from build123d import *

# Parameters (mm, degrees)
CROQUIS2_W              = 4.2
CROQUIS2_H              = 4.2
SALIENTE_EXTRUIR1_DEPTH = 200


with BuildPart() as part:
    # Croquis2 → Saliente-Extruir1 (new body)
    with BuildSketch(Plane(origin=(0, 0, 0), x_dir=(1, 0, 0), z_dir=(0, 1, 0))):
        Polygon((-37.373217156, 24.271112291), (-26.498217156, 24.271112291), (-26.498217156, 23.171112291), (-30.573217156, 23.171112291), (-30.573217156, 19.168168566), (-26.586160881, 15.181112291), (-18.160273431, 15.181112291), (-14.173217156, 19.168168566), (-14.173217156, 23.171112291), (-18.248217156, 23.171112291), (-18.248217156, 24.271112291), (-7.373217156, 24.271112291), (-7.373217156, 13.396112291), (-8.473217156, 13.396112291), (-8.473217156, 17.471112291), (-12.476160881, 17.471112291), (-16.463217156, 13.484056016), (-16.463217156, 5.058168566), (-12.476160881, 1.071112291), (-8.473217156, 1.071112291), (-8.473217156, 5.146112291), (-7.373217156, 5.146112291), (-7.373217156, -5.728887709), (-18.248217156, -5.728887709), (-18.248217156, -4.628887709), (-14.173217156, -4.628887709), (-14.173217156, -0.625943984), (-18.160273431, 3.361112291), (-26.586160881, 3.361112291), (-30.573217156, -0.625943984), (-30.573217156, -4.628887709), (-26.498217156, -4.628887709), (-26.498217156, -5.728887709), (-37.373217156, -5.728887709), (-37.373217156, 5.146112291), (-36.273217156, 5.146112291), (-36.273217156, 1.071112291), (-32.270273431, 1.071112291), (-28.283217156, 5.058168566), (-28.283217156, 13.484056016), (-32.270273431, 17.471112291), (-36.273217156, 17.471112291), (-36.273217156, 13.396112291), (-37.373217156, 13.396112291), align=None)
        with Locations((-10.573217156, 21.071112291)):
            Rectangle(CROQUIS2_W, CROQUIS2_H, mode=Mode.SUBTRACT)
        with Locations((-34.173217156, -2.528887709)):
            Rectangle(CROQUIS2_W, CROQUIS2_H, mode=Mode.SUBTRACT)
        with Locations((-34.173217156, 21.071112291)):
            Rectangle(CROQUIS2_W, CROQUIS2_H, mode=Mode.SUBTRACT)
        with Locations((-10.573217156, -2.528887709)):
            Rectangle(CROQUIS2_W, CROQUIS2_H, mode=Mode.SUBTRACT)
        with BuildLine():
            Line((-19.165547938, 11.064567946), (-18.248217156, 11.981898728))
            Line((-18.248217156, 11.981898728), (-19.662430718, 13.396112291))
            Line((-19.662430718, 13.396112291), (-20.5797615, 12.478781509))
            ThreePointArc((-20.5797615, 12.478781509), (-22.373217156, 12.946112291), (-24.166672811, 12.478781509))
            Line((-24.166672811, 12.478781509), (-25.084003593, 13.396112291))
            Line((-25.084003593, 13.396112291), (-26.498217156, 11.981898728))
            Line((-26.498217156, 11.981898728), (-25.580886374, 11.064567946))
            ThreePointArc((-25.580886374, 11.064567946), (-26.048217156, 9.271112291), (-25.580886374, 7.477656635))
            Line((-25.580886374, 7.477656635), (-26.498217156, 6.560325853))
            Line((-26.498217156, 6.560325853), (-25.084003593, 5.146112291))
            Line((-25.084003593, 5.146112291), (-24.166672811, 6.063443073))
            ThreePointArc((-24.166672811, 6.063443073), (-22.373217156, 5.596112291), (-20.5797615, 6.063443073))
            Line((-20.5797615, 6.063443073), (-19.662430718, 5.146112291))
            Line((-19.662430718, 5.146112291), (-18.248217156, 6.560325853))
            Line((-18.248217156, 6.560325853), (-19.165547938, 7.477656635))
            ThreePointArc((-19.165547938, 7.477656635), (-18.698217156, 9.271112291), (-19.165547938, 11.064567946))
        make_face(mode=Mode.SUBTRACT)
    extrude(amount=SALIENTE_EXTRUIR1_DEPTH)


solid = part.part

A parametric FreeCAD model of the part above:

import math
import FreeCAD as App
import Part
import Sketcher

V = App.Vector
Q = App.Units.Quantity

doc = App.newDocument("Part")
body = doc.addObject("PartDesign::Body", "Body")

sketch1 = body.newObject("Sketcher::SketchObject", "Sketch")
sketch1.AttachmentSupport = (doc.getObject("XZ_Plane"), [""])
sketch1.MapMode = "FlatFace"
sketch1.addGeometry([
    Part.LineSegment(V(-26.498217, -24.271112, 0), V(-37.373217, -24.271112, 0)),
    Part.LineSegment(V(-37.373217, -24.271112, 0), V(-37.373217, -13.396112, 0)),
    Part.LineSegment(V(-37.373217, -13.396112, 0), V(-36.273217, -13.396112, 0)),
    Part.LineSegment(V(-36.273217, -13.396112, 0), V(-36.273217, -17.471112, 0)),
    Part.LineSegment(V(-36.273217, -17.471112, 0), V(-32.270273, -17.471112, 0)),
    Part.LineSegment(V(-32.270273, -17.471112, 0), V(-28.283217, -13.484056, 0)),
    Part.LineSegment(V(-28.283217, -13.484056, 0), V(-28.283217, -5.058169, 0)),
    Part.LineSegment(V(-28.283217, -5.058169, 0), V(-32.270273, -1.071112, 0)),
    Part.LineSegment(V(-32.270273, -1.071112, 0), V(-36.273217, -1.071112, 0)),
    Part.LineSegment(V(-36.273217, -1.071112, 0), V(-36.273217, -5.146112, 0)),
    Part.LineSegment(V(-36.273217, -5.146112, 0), V(-37.373217, -5.146112, 0)),
    Part.LineSegment(V(-37.373217, -5.146112, 0), V(-37.373217, 5.728888, 0)),
    Part.LineSegment(V(-37.373217, 5.728888, 0), V(-26.498217, 5.728888, 0)),
    Part.LineSegment(V(-26.498217, 5.728888, 0), V(-26.498217, 4.628888, 0)),
    Part.LineSegment(V(-26.498217, 4.628888, 0), V(-30.573217, 4.628888, 0)),
    Part.LineSegment(V(-30.573217, 4.628888, 0), V(-30.573217, 0.625944, 0)),
    Part.LineSegment(V(-30.573217, 0.625944, 0), V(-26.586161, -3.361112, 0)),
    Part.LineSegment(V(-26.586161, -3.361112, 0), V(-18.160273, -3.361112, 0)),
    Part.LineSegment(V(-18.160273, -3.361112, 0), V(-14.173217, 0.625944, 0)),
    Part.LineSegment(V(-14.173217, 0.625944, 0), V(-14.173217, 4.628888, 0)),
    Part.LineSegment(V(-14.173217, 4.628888, 0), V(-18.248217, 4.628888, 0)),
    Part.LineSegment(V(-18.248217, 4.628888, 0), V(-18.248217, 5.728888, 0)),
    Part.LineSegment(V(-18.248217, 5.728888, 0), V(-7.373217, 5.728888, 0)),
    Part.LineSegment(V(-7.373217, 5.728888, 0), V(-7.373217, -5.146112, 0)),
    Part.LineSegment(V(-7.373217, -5.146112, 0), V(-8.473217, -5.146112, 0)),
    Part.LineSegment(V(-8.473217, -5.146112, 0), V(-8.473217, -1.071112, 0)),
    Part.LineSegment(V(-8.473217, -1.071112, 0), V(-12.476161, -1.071112, 0)),
    Part.LineSegment(V(-12.476161, -1.071112, 0), V(-16.463217, -5.058169, 0)),
    Part.LineSegment(V(-16.463217, -5.058169, 0), V(-16.463217, -13.484056, 0)),
    Part.LineSegment(V(-16.463217, -13.484056, 0), V(-12.476161, -17.471112, 0)),
    Part.LineSegment(V(-12.476161, -17.471112, 0), V(-8.473217, -17.471112, 0)),
    Part.LineSegment(V(-8.473217, -17.471112, 0), V(-8.473217, -13.396112, 0)),
    Part.LineSegment(V(-8.473217, -13.396112, 0), V(-7.373217, -13.396112, 0)),
    Part.LineSegment(V(-7.373217, -13.396112, 0), V(-7.373217, -24.271112, 0)),
    Part.LineSegment(V(-7.373217, -24.271112, 0), V(-18.248217, -24.271112, 0)),
    Part.LineSegment(V(-18.248217, -24.271112, 0), V(-18.248217, -23.171112, 0)),
    Part.LineSegment(V(-18.248217, -23.171112, 0), V(-14.173217, -23.171112, 0)),
    Part.LineSegment(V(-14.173217, -23.171112, 0), V(-14.173217, -19.168169, 0)),
    Part.LineSegment(V(-14.173217, -19.168169, 0), V(-18.160273, -15.181112, 0)),
    Part.LineSegment(V(-18.160273, -15.181112, 0), V(-26.586161, -15.181112, 0)),
    Part.LineSegment(V(-26.586161, -15.181112, 0), V(-30.573217, -19.168169, 0)),
    Part.LineSegment(V(-30.573217, -19.168169, 0), V(-30.573217, -23.171112, 0)),
    Part.LineSegment(V(-30.573217, -23.171112, 0), V(-26.498217, -23.171112, 0)),
    Part.LineSegment(V(-26.498217, -23.171112, 0), V(-26.498217, -24.271112, 0)),
    Part.LineSegment(V(-12.673217, 4.628888, 0), V(-12.673217, 0.428888, 0)),
    Part.LineSegment(V(-12.673217, 0.428888, 0), V(-8.473217, 0.428888, 0)),
    Part.LineSegment(V(-8.473217, 0.428888, 0), V(-8.473217, 4.628888, 0)),
    Part.LineSegment(V(-8.473217, 4.628888, 0), V(-12.673217, 4.628888, 0)),
    Part.LineSegment(V(-36.273217, 4.628888, 0), V(-36.273217, 0.428888, 0)),
    Part.LineSegment(V(-36.273217, 0.428888, 0), V(-32.073217, 0.428888, 0)),
    Part.LineSegment(V(-32.073217, 0.428888, 0), V(-32.073217, 4.628888, 0)),
    Part.LineSegment(V(-32.073217, 4.628888, 0), V(-36.273217, 4.628888, 0)),
    Part.ArcOfCircle(Part.Circle(V(-22.373217, -9.271112, 0), V(0, 0, 1), 3.675), math.radians(-29.210206), math.radians(29.210206)),
    Part.LineSegment(V(-19.165548, -7.477657, 0), V(-18.248217, -6.560326, 0)),
    Part.LineSegment(V(-18.248217, -6.560326, 0), V(-19.662431, -5.146112, 0)),
    Part.LineSegment(V(-19.662431, -5.146112, 0), V(-20.579762, -6.063443, 0)),
    Part.ArcOfCircle(Part.Circle(V(-22.373217, -9.271112, 0), V(0, 0, 1), 3.675), math.radians(60.789794), math.radians(119.210206)),
    Part.LineSegment(V(-24.166673, -6.063443, 0), V(-25.084004, -5.146112, 0)),
    Part.LineSegment(V(-25.084004, -5.146112, 0), V(-26.498217, -6.560326, 0)),
    Part.LineSegment(V(-26.498217, -6.560326, 0), V(-25.580886, -7.477657, 0)),
    Part.ArcOfCircle(Part.Circle(V(-22.373217, -9.271112, 0), V(0, 0, 1), 3.675), math.radians(150.789794), math.radians(209.210206)),
    Part.LineSegment(V(-25.580886, -11.064568, 0), V(-26.498217, -11.981899, 0)),
    Part.LineSegment(V(-26.498217, -11.981899, 0), V(-25.084004, -13.396112, 0)),
    Part.LineSegment(V(-25.084004, -13.396112, 0), V(-24.166673, -12.478782, 0)),
    Part.ArcOfCircle(Part.Circle(V(-22.373217, -9.271112, 0), V(0, 0, 1), 3.675), math.radians(-119.210206), math.radians(-60.789794)),
    Part.LineSegment(V(-20.579762, -12.478782, 0), V(-19.662431, -13.396112, 0)),
    Part.LineSegment(V(-19.662431, -13.396112, 0), V(-18.248217, -11.981899, 0)),
    Part.LineSegment(V(-18.248217, -11.981899, 0), V(-19.165548, -11.064568, 0)),
    Part.LineSegment(V(-12.673217, -18.971112, 0), V(-12.673217, -23.171112, 0)),
    Part.LineSegment(V(-12.673217, -23.171112, 0), V(-8.473217, -23.171112, 0)),
    Part.LineSegment(V(-8.473217, -23.171112, 0), V(-8.473217, -18.971112, 0)),
    Part.LineSegment(V(-8.473217, -18.971112, 0), V(-12.673217, -18.971112, 0)),
    Part.LineSegment(V(-36.273217, -18.971112, 0), V(-36.273217, -23.171112, 0)),
    Part.LineSegment(V(-36.273217, -23.171112, 0), V(-32.073217, -23.171112, 0)),
    Part.LineSegment(V(-32.073217, -23.171112, 0), V(-32.073217, -18.971112, 0)),
    Part.LineSegment(V(-32.073217, -18.971112, 0), V(-36.273217, -18.971112, 0)),
], False)
sketch1.addConstraint([
    Sketcher.Constraint("Coincident", 0, 2, 1, 1),
    Sketcher.Constraint("Coincident", 1, 2, 2, 1),
    Sketcher.Constraint("Coincident", 2, 2, 3, 1),
    Sketcher.Constraint("Coincident", 3, 2, 4, 1),
    Sketcher.Constraint("Coincident", 4, 2, 5, 1),
    Sketcher.Constraint("Coincident", 5, 2, 6, 1),
    Sketcher.Constraint("Coincident", 6, 2, 7, 1),
    Sketcher.Constraint("Coincident", 7, 2, 8, 1),
    Sketcher.Constraint("Coincident", 8, 2, 9, 1),
    Sketcher.Constraint("Coincident", 9, 2, 10, 1),
    Sketcher.Constraint("Coincident", 10, 2, 11, 1),
    Sketcher.Constraint("Coincident", 11, 2, 12, 1),
    Sketcher.Constraint("Coincident", 12, 2, 13, 1),
    Sketcher.Constraint("Coincident", 13, 2, 14, 1),
    Sketcher.Constraint("Coincident", 14, 2, 15, 1),
    Sketcher.Constraint("Coincident", 15, 2, 16, 1),
    Sketcher.Constraint("Coincident", 16, 2, 17, 1),
    Sketcher.Constraint("Coincident", 17, 2, 18, 1),
    Sketcher.Constraint("Coincident", 18, 2, 19, 1),
    Sketcher.Constraint("Coincident", 19, 2, 20, 1),
    Sketcher.Constraint("Coincident", 20, 2, 21, 1),
    Sketcher.Constraint("Coincident", 21, 2, 22, 1),
    Sketcher.Constraint("Coincident", 22, 2, 23, 1),
    Sketcher.Constraint("Coincident", 23, 2, 24, 1),
    Sketcher.Constraint("Coincident", 24, 2, 25, 1),
    Sketcher.Constraint("Coincident", 25, 2, 26, 1),
    Sketcher.Constraint("Coincident", 26, 2, 27, 1),
    Sketcher.Constraint("Coincident", 27, 2, 28, 1),
    Sketcher.Constraint("Coincident", 28, 2, 29, 1),
    Sketcher.Constraint("Coincident", 29, 2, 30, 1),
    Sketcher.Constraint("Coincident", 30, 2, 31, 1),
    Sketcher.Constraint("Coincident", 31, 2, 32, 1),
    Sketcher.Constraint("Coincident", 32, 2, 33, 1),
    Sketcher.Constraint("Coincident", 33, 2, 34, 1),
    Sketcher.Constraint("Coincident", 34, 2, 35, 1),
    Sketcher.Constraint("Coincident", 35, 2, 36, 1),
    Sketcher.Constraint("Coincident", 36, 2, 37, 1),
    Sketcher.Constraint("Coincident", 37, 2, 38, 1),
    Sketcher.Constraint("Coincident", 38, 2, 39, 1),
    Sketcher.Constraint("Coincident", 39, 2, 40, 1),
    Sketcher.Constraint("Coincident", 40, 2, 41, 1),
    Sketcher.Constraint("Coincident", 41, 2, 42, 1),
    Sketcher.Constraint("Coincident", 42, 2, 43, 1),
    Sketcher.Constraint("Coincident", 43, 2, 0, 1),
    Sketcher.Constraint("Coincident", 44, 2, 45, 1),
    Sketcher.Constraint("Coincident", 45, 2, 46, 1),
    Sketcher.Constraint("Coincident", 46, 2, 47, 1),
    Sketcher.Constraint("Coincident", 47, 2, 44, 1),
    Sketcher.Constraint("Coincident", 48, 2, 49, 1),
    Sketcher.Constraint("Coincident", 49, 2, 50, 1),
    Sketcher.Constraint("Coincident", 50, 2, 51, 1),
    Sketcher.Constraint("Coincident", 51, 2, 48, 1),
    Sketcher.Constraint("Coincident", 52, 2, 53, 1),
    Sketcher.Constraint("Coincident", 53, 2, 54, 1),
    Sketcher.Constraint("Coincident", 54, 2, 55, 1),
    Sketcher.Constraint("Coincident", 55, 2, 56, 1),
    Sketcher.Constraint("Coincident", 56, 2, 57, 1),
    Sketcher.Constraint("Coincident", 57, 2, 58, 1),
    Sketcher.Constraint("Coincident", 58, 2, 59, 1),
    Sketcher.Constraint("Coincident", 59, 2, 60, 1),
    Sketcher.Constraint("Coincident", 60, 2, 61, 1),
    Sketcher.Constraint("Coincident", 61, 2, 62, 1),
    Sketcher.Constraint("Coincident", 62, 2, 63, 1),
    Sketcher.Constraint("Coincident", 63, 2, 64, 1),
    Sketcher.Constraint("Coincident", 64, 2, 65, 1),
    Sketcher.Constraint("Coincident", 65, 2, 66, 1),
    Sketcher.Constraint("Coincident", 66, 2, 67, 1),
    Sketcher.Constraint("Coincident", 67, 2, 52, 1),
    Sketcher.Constraint("Coincident", 68, 2, 69, 1),
    Sketcher.Constraint("Coincident", 69, 2, 70, 1),
    Sketcher.Constraint("Coincident", 70, 2, 71, 1),
    Sketcher.Constraint("Coincident", 71, 2, 68, 1),
    Sketcher.Constraint("Coincident", 72, 2, 73, 1),
    Sketcher.Constraint("Coincident", 73, 2, 74, 1),
    Sketcher.Constraint("Coincident", 74, 2, 75, 1),
    Sketcher.Constraint("Coincident", 75, 2, 72, 1),
    Sketcher.Constraint("Horizontal", 0),
    Sketcher.Constraint("Vertical", 1),
    Sketcher.Constraint("Horizontal", 2),
    Sketcher.Constraint("Vertical", 3),
    Sketcher.Constraint("Horizontal", 4),
    Sketcher.Constraint("Vertical", 6),
    Sketcher.Constraint("Horizontal", 8),
    Sketcher.Constraint("Vertical", 9),
    Sketcher.Constraint("Horizontal", 10),
    Sketcher.Constraint("Vertical", 11),
    Sketcher.Constraint("Horizontal", 12),
    Sketcher.Constraint("Vertical", 13),
    Sketcher.Constraint("Horizontal", 14),
    Sketcher.Constraint("Vertical", 15),
    Sketcher.Constraint("Horizontal", 17),
    Sketcher.Constraint("Vertical", 19),
    Sketcher.Constraint("Horizontal", 20),
    Sketcher.Constraint("Vertical", 21),
    Sketcher.Constraint("Horizontal", 22),
    Sketcher.Constraint("Vertical", 23),
    Sketcher.Constraint("Horizontal", 24),
    Sketcher.Constraint("Vertical", 25),
    Sketcher.Constraint("Horizontal", 26),
    Sketcher.Constraint("Vertical", 28),
    Sketcher.Constraint("Horizontal", 30),
    Sketcher.Constraint("Vertical", 31),
    Sketcher.Constraint("Horizontal", 32),
    Sketcher.Constraint("Vertical", 33),
    Sketcher.Constraint("Horizontal", 34),
    Sketcher.Constraint("Vertical", 35),
    Sketcher.Constraint("Horizontal", 36),
    Sketcher.Constraint("Vertical", 37),
    Sketcher.Constraint("Horizontal", 39),
    Sketcher.Constraint("Vertical", 41),
    Sketcher.Constraint("Horizontal", 42),
    Sketcher.Constraint("Vertical", 43),
    Sketcher.Constraint("Vertical", 44),
    Sketcher.Constraint("Horizontal", 45),
    Sketcher.Constraint("Vertical", 46),
    Sketcher.Constraint("Horizontal", 47),
    Sketcher.Constraint("Vertical", 48),
    Sketcher.Constraint("Horizontal", 49),
    Sketcher.Constraint("Vertical", 50),
    Sketcher.Constraint("Horizontal", 51),
    Sketcher.Constraint("Vertical", 68),
    Sketcher.Constraint("Horizontal", 69),
    Sketcher.Constraint("Vertical", 70),
    Sketcher.Constraint("Horizontal", 71),
    Sketcher.Constraint("Vertical", 72),
    Sketcher.Constraint("Horizontal", 73),
    Sketcher.Constraint("Vertical", 74),
    Sketcher.Constraint("Horizontal", 75),
    Sketcher.Constraint("Coincident", 56, 3, 52, 3),
    Sketcher.Constraint("Coincident", 60, 3, 52, 3),
    Sketcher.Constraint("Coincident", 64, 3, 52, 3),
    Sketcher.Constraint("Equal", 52, 56),
    Sketcher.Constraint("Equal", 56, 60),
    Sketcher.Constraint("Equal", 60, 64),
    Sketcher.Constraint("Perpendicular", 5, 7),
    Sketcher.Constraint("Parallel", 7, 16),
    Sketcher.Constraint("Perpendicular", 16, 18),
    Sketcher.Constraint("Parallel", 18, 27),
    Sketcher.Constraint("Perpendicular", 27, 29),
    Sketcher.Constraint("Parallel", 29, 38),
    Sketcher.Constraint("Perpendicular", 38, 40),
    Sketcher.Constraint("Parallel", 40, 53),
    Sketcher.Constraint("Perpendicular", 53, 54),
    Sketcher.Constraint("Perpendicular", 54, 55),
    Sketcher.Constraint("Perpendicular", 55, 57),
    Sketcher.Constraint("Perpendicular", 57, 58),
    Sketcher.Constraint("Perpendicular", 58, 59),
    Sketcher.Constraint("Perpendicular", 59, 61),
    Sketcher.Constraint("Perpendicular", 61, 62),
    Sketcher.Constraint("Perpendicular", 62, 63),
    Sketcher.Constraint("Perpendicular", 63, 65),
    Sketcher.Constraint("Perpendicular", 65, 66),
    Sketcher.Constraint("Perpendicular", 66, 67),
    Sketcher.Constraint("Horizontal", 15, 2, 18, 2),
    Sketcher.Constraint("Horizontal", 14, 2, 19, 2),
    Sketcher.Constraint("Horizontal", 12, 2, 21, 2),
    Sketcher.Constraint("Horizontal", 10, 2, 23, 2),
    Sketcher.Constraint("Horizontal", 8, 2, 25, 2),
    Sketcher.Constraint("Horizontal", 6, 2, 27, 2),
    Sketcher.Constraint("Horizontal", 5, 2, 28, 2),
    Sketcher.Constraint("Horizontal", 4, 2, 29, 2),
    Sketcher.Constraint("Horizontal", 2, 2, 31, 2),
    Sketcher.Constraint("Horizontal", 0, 2, 33, 2),
    Sketcher.Constraint("Horizontal", 37, 2, 40, 2),
    Sketcher.Constraint("Horizontal", 36, 2, 41, 2),
    Sketcher.Constraint("Horizontal", 20, 2, 46, 2),
    Sketcher.Constraint("Horizontal", 45, 2, 48, 2),
    Sketcher.Constraint("Horizontal", 47, 2, 50, 2),
    Sketcher.Constraint("Horizontal", 24, 2, 54, 2),
    Sketcher.Constraint("Horizontal", 55, 2, 56, 2),
    Sketcher.Constraint("Horizontal", 54, 2, 57, 2),
    Sketcher.Constraint("Horizontal", 53, 2, 58, 2),
    Sketcher.Constraint("Horizontal", 52, 2, 59, 2),
    Sketcher.Constraint("Horizontal", 32, 2, 62, 2),
    Sketcher.Constraint("Horizontal", 63, 2, 64, 2),
    Sketcher.Constraint("Horizontal", 62, 2, 65, 2),
    Sketcher.Constraint("Horizontal", 61, 2, 66, 2),
    Sketcher.Constraint("Horizontal", 42, 2, 68, 2),
    Sketcher.Constraint("Horizontal", 69, 2, 72, 2),
    Sketcher.Constraint("Horizontal", 71, 2, 74, 2),
    Sketcher.Constraint("Vertical", 4, 2, 7, 2),
    Sketcher.Constraint("Vertical", 3, 2, 8, 2),
    Sketcher.Constraint("Vertical", 1, 2, 10, 2),
    Sketcher.Constraint("Vertical", 25, 2, 30, 2),
    Sketcher.Constraint("Vertical", 23, 2, 32, 2),
    Sketcher.Constraint("Vertical", 21, 2, 34, 2),
    Sketcher.Constraint("Vertical", 19, 2, 36, 2),
    Sketcher.Constraint("Vertical", 17, 2, 38, 2),
    Sketcher.Constraint("Vertical", 16, 2, 39, 2),
    Sketcher.Constraint("Vertical", 13, 2, 42, 2),
    Sketcher.Constraint("Vertical", 31, 2, 45, 2),
    Sketcher.Constraint("Vertical", 9, 2, 48, 2),
    Sketcher.Constraint("Vertical", 35, 2, 53, 2),
    Sketcher.Constraint("Vertical", 43, 2, 58, 2),
    Sketcher.Constraint("Vertical", 59, 2, 60, 2),
    Sketcher.Constraint("Vertical", 58, 2, 61, 2),
    Sketcher.Constraint("Vertical", 57, 2, 62, 2),
    Sketcher.Constraint("Vertical", 47, 2, 68, 2),
    Sketcher.Constraint("Vertical", 46, 2, 69, 2),
    Sketcher.Constraint("Vertical", 51, 2, 72, 2),
    Sketcher.Constraint("Vertical", 50, 2, 73, 2),
    Sketcher.Constraint("Equal", 14, 20),
    Sketcher.Constraint("Equal", 12, 22),
    Sketcher.Constraint("Equal", 10, 24),
    Sketcher.Constraint("Equal", 8, 26),
    Sketcher.Constraint("Equal", 47, 49),
    Sketcher.Constraint("Equal", 34, 1),
    Sketcher.Constraint("Equal", 42, 3),
    Sketcher.Constraint("Equal", 39, 6),
    Sketcher.Constraint("Equal", 3, 9),
    Sketcher.Constraint("Equal", 1, 11),
    Sketcher.Constraint("Equal", 32, 13),
    Sketcher.Constraint("Equal", 30, 15),
    Sketcher.Constraint("Equal", 21, 35),
    Sketcher.Constraint("Equal", 19, 37),
    Sketcher.Constraint("Equal", 75, 44),
    Sketcher.Constraint("Equal", 50, 68),
    Sketcher.Constraint("Equal", 7, 16),
    Sketcher.Constraint("Distance", 54, Q("2 mm")),
    Sketcher.Constraint("DistanceX", 2, 1, 2, 2, Q("1.1 mm")),
    Sketcher.Constraint("DistanceX", 45, 1, 45, 2, Q("4.2 mm")),
    Sketcher.Constraint("Radius", 52, Q("3.675 mm")),
    Sketcher.Constraint("DistanceX", 0, 2, 0, 1, Q("10.875 mm")),
    Sketcher.Constraint("DistanceX", 14, 2, 14, 1, Q("4.075 mm")),
    Sketcher.Constraint("Distance", 53, Q("1.297302 mm")),
    Sketcher.Constraint("DistanceY", 61, 2, -1, 1, Q("11.981899 mm")),
    Sketcher.Constraint("Distance", 5, Q("5.638549 mm")),
    Sketcher.Constraint("DistanceX", 4, 1, 4, 2, Q("4.002944 mm")),
    Sketcher.Constraint("DistanceX", 16, 2, -1, 1, Q("26.586161 mm")),
])
pad1 = body.newObject("PartDesign::Pad", "Pad")
pad1.Profile = sketch1
pad1.Length = 200
pad1.Reversed = True

doc.recompute()
